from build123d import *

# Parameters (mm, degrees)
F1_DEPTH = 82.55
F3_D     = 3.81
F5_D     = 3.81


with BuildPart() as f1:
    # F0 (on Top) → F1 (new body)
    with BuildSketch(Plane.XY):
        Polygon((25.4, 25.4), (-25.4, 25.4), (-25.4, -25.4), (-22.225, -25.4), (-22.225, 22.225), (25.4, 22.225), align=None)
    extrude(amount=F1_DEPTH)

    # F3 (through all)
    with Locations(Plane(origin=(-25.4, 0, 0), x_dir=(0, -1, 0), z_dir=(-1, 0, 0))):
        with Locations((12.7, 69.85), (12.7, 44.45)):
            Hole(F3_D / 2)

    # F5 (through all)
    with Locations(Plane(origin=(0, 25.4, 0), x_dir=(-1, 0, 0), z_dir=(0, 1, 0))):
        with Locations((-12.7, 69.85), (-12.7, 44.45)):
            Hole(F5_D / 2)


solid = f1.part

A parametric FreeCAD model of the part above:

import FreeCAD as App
import Part
import Sketcher
Q = App.Units.Quantity

doc = App.newDocument("Part")
params = doc.addObject("Spreadsheet::Sheet", "Params")
for row, (alias, value) in enumerate([
    ("sketch1_width", "2 in"),
    ("sketch1_width2", "0.125 in"),
    ("pad1_length", "3.25 in"),
    ("sketch2_diameter", "0.15 in"),
    ("hole_diameter", "0.15 in"),
    ("sketch3_diameter", "0.15 in"),
    ("hole2_diameter", "0.15 in"),
], start=1):
    params.set(f"A{row}", alias)
    params.set(f"B{row}", "=" + value)
    params.setAlias(f"B{row}", alias)

body = doc.addObject("PartDesign::Body", "Body")

# Sketch on XY plane
sketch1 = doc.addObject("Sketcher::SketchObject", "Sketch")
body.addObject(sketch1)
sketch1.AttachmentSupport = (doc.XY_Plane, [""])
sketch1.MapMode = "FlatFace"
sketch1.addGeometry([
    Part.LineSegment(App.Vector(25.4, 25.4, 0), App.Vector(-25.4, 25.4, 0)),  # 0
    Part.LineSegment(App.Vector(-25.4, 25.4, 0), App.Vector(-25.4, -25.4, 0)),  # 1
    Part.LineSegment(App.Vector(-25.4, -25.4, 0), App.Vector(-22.2, -25.4, 0)),  # 2
    Part.LineSegment(App.Vector(-22.2, -25.4, 0), App.Vector(-22.2, 22.2, 0)),  # 3
    Part.LineSegment(App.Vector(-22.2, 22.2, 0), App.Vector(25.4, 22.2, 0)),  # 4
    Part.LineSegment(App.Vector(25.4, 22.2, 0), App.Vector(25.4, 25.4, 0)),  # 5
], False)
sketch1.addConstraint([
    Sketcher.Constraint("Coincident", 0, 2, 1, 1),
    Sketcher.Constraint("Coincident", 1, 2, 2, 1),
    Sketcher.Constraint("Coincident", 2, 2, 3, 1),
    Sketcher.Constraint("Coincident", 3, 2, 4, 1),
    Sketcher.Constraint("Coincident", 4, 2, 5, 1),
    Sketcher.Constraint("Coincident", 5, 2, 0, 1),
    Sketcher.Constraint("Horizontal", 0),
    Sketcher.Constraint("Vertical", 1),
    Sketcher.Constraint("Horizontal", 2),
    Sketcher.Constraint("Vertical", 3),
    Sketcher.Constraint("Horizontal", 4),
    Sketcher.Constraint("Vertical", 5),
    Sketcher.Constraint("Symmetric", 1, 2, 5, 2, -1, 1),
    Sketcher.Constraint("Equal", 0, 1),
    Sketcher.Constraint("Equal", 4, 3),
    Sketcher.Constraint("DistanceX", 0, 2, 0, 1, Q("2 in")),
    Sketcher.Constraint("DistanceX", 2, 1, 2, 2, Q("0.125 in")),
])
sketch1.setExpression("Constraints[15]", "Params.sketch1_width")
sketch1.setExpression("Constraints[16]", "Params.sketch1_width2")
pad1 = doc.addObject("PartDesign::Pad", "Pad")
body.addObject(pad1)
pad1.Profile = sketch1
pad1.setExpression("Length", "Params.pad1_length")

# Sketch on YZ plane
sketch2 = doc.addObject("Sketcher::SketchObject", "Sketch001")
body.addObject(sketch2)
sketch2.AttachmentSupport = (doc.YZ_Plane, [""])
sketch2.MapMode = "FlatFace"
sketch2.AttachmentOffset = App.Placement(App.Vector(0, 0, -1 * 25.4), App.Rotation())
sketch2.addGeometry([
    Part.Circle(App.Vector(-12.7, 69.8, 0), App.Vector(0, 0, 1), 1.9),
    Part.Circle(App.Vector(-12.7, 44.5, 0), App.Vector(0, 0, 1), 1.9),
], False)
sketch2.addConstraint([
    Sketcher.Constraint("Equal", 0, 1),
    Sketcher.Constraint("Vertical", 0, 3, 1, 3),
    Sketcher.Constraint("Diameter", 0, Q("0.15 in")),
    Sketcher.Constraint("DistanceY", 1, 3, 0, 3, Q("1 in")),
    Sketcher.Constraint("DistanceX", 0, 3, -1, 1, Q("0.5 in")),
    Sketcher.Constraint("DistanceY", -1, 1, 0, 3, Q("2.75 in")),
])
sketch2.setExpression("Constraints[2]", "Params.sketch2_diameter")
doc.recompute()
hole = doc.addObject("PartDesign::Hole", "Hole")
body.addObject(hole)
hole.Profile = sketch2
hole.ThreadType = "None"
hole.setExpression("Diameter", "Params.hole_diameter")
hole.DepthType = "ThroughAll"
hole.Reversed = True

# Sketch on XZ plane
sketch3 = doc.addObject("Sketcher::SketchObject", "Sketch002")
body.addObject(sketch3)
sketch3.AttachmentSupport = (doc.XZ_Plane, [""])
sketch3.MapMode = "FlatFace"
sketch3.AttachmentOffset = App.Placement(App.Vector(0, 0, -1 * 25.4), App.Rotation())
sketch3.addGeometry([
    Part.Circle(App.Vector(12.7, 69.8, 0), App.Vector(0, 0, 1), 1.9),
    Part.Circle(App.Vector(12.7, 44.5, 0), App.Vector(0, 0, 1), 1.9),
], False)
sketch3.addConstraint([
    Sketcher.Constraint("Equal", 0, 1),
    Sketcher.Constraint("Vertical", 0, 3, 1, 3),
    Sketcher.Constraint("Diameter", 0, Q("0.15 in")),
    Sketcher.Constraint("DistanceY", 1, 3, 0, 3, Q("1 in")),
    Sketcher.Constraint("DistanceX", -1, 1, 0, 3, Q("0.5 in")),
    Sketcher.Constraint("DistanceY", -1, 1, 0, 3, Q("2.75 in")),
])
sketch3.setExpression("Constraints[2]", "Params.sketch3_diameter")
doc.recompute()
hole2 = doc.addObject("PartDesign::Hole", "Hole001")
body.addObject(hole2)
hole2.Profile = sketch3
hole2.ThreadType = "None"
hole2.setExpression("Diameter", "Params.hole2_diameter")
hole2.DepthType = "ThroughAll"
hole2.Reversed = True

doc.recompute()
